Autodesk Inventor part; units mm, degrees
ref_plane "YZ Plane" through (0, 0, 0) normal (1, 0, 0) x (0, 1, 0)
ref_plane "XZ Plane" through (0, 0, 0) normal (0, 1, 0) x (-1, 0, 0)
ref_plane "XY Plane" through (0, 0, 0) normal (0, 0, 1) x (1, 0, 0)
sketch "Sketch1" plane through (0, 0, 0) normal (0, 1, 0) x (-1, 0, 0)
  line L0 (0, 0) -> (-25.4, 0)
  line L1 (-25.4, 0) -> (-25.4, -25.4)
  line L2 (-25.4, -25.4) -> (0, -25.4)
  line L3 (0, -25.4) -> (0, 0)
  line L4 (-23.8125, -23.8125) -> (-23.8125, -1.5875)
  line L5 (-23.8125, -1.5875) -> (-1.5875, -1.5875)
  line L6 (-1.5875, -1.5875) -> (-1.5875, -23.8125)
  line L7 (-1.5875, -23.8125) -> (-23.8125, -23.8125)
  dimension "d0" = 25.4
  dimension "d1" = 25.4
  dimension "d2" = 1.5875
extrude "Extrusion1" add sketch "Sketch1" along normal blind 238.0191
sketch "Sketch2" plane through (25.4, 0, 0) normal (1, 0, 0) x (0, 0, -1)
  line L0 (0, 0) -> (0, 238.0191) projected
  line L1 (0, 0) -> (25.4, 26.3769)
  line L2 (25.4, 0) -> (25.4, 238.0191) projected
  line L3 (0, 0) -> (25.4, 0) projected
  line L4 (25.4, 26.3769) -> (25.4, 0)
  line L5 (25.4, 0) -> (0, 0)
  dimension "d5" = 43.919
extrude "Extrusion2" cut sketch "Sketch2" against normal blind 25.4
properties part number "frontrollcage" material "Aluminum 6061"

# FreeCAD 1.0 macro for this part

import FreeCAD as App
import Part
import Sketcher

V = App.Vector
Q = App.Units.Quantity


def add_polygon(sketch, points):
    """Adds a closed chain of lines whose ends are joined by coincident constraints."""
    first, n = sketch.GeometryCount, len(points)
    for a, b in zip(points, points[1:] + points[:1]):
        sketch.addGeometry(Part.LineSegment(App.Vector(*a, 0), App.Vector(*b, 0)), False)
    for i in range(n):
        sketch.addConstraint(Sketcher.Constraint("Coincident", first + i, 2, first + (i + 1) % n, 1))

doc = App.newDocument("Part")
params = doc.addObject("Spreadsheet::Sheet", "Params")
for row, (alias, value) in enumerate([
    ("sketch1_width", "1 in"),
    ("pad1_length", "238.0191 mm"),
    ("sketch2_height", "1 in"),
    ("pocket1_length", "1 in"),
], start=1):
    params.set(f"A{row}", alias)
    params.set(f"B{row}", "=" + value)
    params.setAlias(f"B{row}", alias)

body = doc.addObject("PartDesign::Body", "Body")

# Sketch on XZ plane
sketch1 = body.newObject("Sketcher::SketchObject", "Sketch")
sketch1.AttachmentSupport = (doc.getObject("XZ_Plane"), [""])
sketch1.MapMode = "FlatFace"
add_polygon(sketch1, [(0, -25), (0, 0), (25, 0), (25, -25)])  # lines 0-3
add_polygon(sketch1, [(2, -24), (24, -24), (24, -2), (2, -2)])  # lines 4-7
sketch1.addConstraint([
    Sketcher.Constraint("Vertical", 0),
    Sketcher.Constraint("Horizontal", 1),
    Sketcher.Constraint("Vertical", 2),
    Sketcher.Constraint("Horizontal", 3),
    Sketcher.Constraint("Horizontal", 4),
    Sketcher.Constraint("Vertical", 5),
    Sketcher.Constraint("Horizontal", 6),
    Sketcher.Constraint("Vertical", 7),
    Sketcher.Constraint("Coincident", 0, 2, -1, 1),
    Sketcher.Constraint("Equal", 3, 0),
    Sketcher.Constraint("Equal", 6, 5),
    Sketcher.Constraint("DistanceX", 1, 1, 1, 2, Q("1 in")),
    Sketcher.Constraint("DistanceY", 5, 2, -1, 1, Q("0.0625 in")),
    Sketcher.Constraint("DistanceX", -1, 1, 6, 2, Q("0.0625 in")),
    Sketcher.Constraint("DistanceX", 4, 2, 2, 2, Q("0.0625 in")),
])
sketch1.setExpression("Constraints[19]", "Params.sketch1_width")
pad1 = body.newObject("PartDesign::Pad", "Pad")
pad1.Profile = sketch1
pad1.setExpression("Length", "Params.pad1_length")
pad1.Reversed = True

# Sketch on YZ plane
sketch2 = body.newObject("Sketcher::SketchObject", "Sketch001")
sketch2.AttachmentSupport = (doc.getObject("YZ_Plane"), [""])
sketch2.MapMode = "FlatFace"
sketch2.AttachmentOffset = App.Placement(V(0, 0, 1 * 25.4), App.Rotation())
add_polygon(sketch2, [(26, -25), (0, 0), (0, -25)])  # lines 0-2
sketch2.addConstraint([
    Sketcher.Constraint("Vertical", 1),
    Sketcher.Constraint("Horizontal", 2),
    Sketcher.Constraint("Coincident", 0, 2, -1, 1),
    Sketcher.Constraint("DistanceY", 1, 2, 1, 1, Q("1 in")),
    Sketcher.Constraint("Angle", 0, Q("136.081 deg")),
])
sketch2.setExpression("Constraints[6]", "Params.sketch2_height")
pocket1 = body.newObject("PartDesign::Pocket", "Pocket")
pocket1.Profile = sketch2
pocket1.setExpression("Length", "Params.pocket1_length")

doc.recompute()
